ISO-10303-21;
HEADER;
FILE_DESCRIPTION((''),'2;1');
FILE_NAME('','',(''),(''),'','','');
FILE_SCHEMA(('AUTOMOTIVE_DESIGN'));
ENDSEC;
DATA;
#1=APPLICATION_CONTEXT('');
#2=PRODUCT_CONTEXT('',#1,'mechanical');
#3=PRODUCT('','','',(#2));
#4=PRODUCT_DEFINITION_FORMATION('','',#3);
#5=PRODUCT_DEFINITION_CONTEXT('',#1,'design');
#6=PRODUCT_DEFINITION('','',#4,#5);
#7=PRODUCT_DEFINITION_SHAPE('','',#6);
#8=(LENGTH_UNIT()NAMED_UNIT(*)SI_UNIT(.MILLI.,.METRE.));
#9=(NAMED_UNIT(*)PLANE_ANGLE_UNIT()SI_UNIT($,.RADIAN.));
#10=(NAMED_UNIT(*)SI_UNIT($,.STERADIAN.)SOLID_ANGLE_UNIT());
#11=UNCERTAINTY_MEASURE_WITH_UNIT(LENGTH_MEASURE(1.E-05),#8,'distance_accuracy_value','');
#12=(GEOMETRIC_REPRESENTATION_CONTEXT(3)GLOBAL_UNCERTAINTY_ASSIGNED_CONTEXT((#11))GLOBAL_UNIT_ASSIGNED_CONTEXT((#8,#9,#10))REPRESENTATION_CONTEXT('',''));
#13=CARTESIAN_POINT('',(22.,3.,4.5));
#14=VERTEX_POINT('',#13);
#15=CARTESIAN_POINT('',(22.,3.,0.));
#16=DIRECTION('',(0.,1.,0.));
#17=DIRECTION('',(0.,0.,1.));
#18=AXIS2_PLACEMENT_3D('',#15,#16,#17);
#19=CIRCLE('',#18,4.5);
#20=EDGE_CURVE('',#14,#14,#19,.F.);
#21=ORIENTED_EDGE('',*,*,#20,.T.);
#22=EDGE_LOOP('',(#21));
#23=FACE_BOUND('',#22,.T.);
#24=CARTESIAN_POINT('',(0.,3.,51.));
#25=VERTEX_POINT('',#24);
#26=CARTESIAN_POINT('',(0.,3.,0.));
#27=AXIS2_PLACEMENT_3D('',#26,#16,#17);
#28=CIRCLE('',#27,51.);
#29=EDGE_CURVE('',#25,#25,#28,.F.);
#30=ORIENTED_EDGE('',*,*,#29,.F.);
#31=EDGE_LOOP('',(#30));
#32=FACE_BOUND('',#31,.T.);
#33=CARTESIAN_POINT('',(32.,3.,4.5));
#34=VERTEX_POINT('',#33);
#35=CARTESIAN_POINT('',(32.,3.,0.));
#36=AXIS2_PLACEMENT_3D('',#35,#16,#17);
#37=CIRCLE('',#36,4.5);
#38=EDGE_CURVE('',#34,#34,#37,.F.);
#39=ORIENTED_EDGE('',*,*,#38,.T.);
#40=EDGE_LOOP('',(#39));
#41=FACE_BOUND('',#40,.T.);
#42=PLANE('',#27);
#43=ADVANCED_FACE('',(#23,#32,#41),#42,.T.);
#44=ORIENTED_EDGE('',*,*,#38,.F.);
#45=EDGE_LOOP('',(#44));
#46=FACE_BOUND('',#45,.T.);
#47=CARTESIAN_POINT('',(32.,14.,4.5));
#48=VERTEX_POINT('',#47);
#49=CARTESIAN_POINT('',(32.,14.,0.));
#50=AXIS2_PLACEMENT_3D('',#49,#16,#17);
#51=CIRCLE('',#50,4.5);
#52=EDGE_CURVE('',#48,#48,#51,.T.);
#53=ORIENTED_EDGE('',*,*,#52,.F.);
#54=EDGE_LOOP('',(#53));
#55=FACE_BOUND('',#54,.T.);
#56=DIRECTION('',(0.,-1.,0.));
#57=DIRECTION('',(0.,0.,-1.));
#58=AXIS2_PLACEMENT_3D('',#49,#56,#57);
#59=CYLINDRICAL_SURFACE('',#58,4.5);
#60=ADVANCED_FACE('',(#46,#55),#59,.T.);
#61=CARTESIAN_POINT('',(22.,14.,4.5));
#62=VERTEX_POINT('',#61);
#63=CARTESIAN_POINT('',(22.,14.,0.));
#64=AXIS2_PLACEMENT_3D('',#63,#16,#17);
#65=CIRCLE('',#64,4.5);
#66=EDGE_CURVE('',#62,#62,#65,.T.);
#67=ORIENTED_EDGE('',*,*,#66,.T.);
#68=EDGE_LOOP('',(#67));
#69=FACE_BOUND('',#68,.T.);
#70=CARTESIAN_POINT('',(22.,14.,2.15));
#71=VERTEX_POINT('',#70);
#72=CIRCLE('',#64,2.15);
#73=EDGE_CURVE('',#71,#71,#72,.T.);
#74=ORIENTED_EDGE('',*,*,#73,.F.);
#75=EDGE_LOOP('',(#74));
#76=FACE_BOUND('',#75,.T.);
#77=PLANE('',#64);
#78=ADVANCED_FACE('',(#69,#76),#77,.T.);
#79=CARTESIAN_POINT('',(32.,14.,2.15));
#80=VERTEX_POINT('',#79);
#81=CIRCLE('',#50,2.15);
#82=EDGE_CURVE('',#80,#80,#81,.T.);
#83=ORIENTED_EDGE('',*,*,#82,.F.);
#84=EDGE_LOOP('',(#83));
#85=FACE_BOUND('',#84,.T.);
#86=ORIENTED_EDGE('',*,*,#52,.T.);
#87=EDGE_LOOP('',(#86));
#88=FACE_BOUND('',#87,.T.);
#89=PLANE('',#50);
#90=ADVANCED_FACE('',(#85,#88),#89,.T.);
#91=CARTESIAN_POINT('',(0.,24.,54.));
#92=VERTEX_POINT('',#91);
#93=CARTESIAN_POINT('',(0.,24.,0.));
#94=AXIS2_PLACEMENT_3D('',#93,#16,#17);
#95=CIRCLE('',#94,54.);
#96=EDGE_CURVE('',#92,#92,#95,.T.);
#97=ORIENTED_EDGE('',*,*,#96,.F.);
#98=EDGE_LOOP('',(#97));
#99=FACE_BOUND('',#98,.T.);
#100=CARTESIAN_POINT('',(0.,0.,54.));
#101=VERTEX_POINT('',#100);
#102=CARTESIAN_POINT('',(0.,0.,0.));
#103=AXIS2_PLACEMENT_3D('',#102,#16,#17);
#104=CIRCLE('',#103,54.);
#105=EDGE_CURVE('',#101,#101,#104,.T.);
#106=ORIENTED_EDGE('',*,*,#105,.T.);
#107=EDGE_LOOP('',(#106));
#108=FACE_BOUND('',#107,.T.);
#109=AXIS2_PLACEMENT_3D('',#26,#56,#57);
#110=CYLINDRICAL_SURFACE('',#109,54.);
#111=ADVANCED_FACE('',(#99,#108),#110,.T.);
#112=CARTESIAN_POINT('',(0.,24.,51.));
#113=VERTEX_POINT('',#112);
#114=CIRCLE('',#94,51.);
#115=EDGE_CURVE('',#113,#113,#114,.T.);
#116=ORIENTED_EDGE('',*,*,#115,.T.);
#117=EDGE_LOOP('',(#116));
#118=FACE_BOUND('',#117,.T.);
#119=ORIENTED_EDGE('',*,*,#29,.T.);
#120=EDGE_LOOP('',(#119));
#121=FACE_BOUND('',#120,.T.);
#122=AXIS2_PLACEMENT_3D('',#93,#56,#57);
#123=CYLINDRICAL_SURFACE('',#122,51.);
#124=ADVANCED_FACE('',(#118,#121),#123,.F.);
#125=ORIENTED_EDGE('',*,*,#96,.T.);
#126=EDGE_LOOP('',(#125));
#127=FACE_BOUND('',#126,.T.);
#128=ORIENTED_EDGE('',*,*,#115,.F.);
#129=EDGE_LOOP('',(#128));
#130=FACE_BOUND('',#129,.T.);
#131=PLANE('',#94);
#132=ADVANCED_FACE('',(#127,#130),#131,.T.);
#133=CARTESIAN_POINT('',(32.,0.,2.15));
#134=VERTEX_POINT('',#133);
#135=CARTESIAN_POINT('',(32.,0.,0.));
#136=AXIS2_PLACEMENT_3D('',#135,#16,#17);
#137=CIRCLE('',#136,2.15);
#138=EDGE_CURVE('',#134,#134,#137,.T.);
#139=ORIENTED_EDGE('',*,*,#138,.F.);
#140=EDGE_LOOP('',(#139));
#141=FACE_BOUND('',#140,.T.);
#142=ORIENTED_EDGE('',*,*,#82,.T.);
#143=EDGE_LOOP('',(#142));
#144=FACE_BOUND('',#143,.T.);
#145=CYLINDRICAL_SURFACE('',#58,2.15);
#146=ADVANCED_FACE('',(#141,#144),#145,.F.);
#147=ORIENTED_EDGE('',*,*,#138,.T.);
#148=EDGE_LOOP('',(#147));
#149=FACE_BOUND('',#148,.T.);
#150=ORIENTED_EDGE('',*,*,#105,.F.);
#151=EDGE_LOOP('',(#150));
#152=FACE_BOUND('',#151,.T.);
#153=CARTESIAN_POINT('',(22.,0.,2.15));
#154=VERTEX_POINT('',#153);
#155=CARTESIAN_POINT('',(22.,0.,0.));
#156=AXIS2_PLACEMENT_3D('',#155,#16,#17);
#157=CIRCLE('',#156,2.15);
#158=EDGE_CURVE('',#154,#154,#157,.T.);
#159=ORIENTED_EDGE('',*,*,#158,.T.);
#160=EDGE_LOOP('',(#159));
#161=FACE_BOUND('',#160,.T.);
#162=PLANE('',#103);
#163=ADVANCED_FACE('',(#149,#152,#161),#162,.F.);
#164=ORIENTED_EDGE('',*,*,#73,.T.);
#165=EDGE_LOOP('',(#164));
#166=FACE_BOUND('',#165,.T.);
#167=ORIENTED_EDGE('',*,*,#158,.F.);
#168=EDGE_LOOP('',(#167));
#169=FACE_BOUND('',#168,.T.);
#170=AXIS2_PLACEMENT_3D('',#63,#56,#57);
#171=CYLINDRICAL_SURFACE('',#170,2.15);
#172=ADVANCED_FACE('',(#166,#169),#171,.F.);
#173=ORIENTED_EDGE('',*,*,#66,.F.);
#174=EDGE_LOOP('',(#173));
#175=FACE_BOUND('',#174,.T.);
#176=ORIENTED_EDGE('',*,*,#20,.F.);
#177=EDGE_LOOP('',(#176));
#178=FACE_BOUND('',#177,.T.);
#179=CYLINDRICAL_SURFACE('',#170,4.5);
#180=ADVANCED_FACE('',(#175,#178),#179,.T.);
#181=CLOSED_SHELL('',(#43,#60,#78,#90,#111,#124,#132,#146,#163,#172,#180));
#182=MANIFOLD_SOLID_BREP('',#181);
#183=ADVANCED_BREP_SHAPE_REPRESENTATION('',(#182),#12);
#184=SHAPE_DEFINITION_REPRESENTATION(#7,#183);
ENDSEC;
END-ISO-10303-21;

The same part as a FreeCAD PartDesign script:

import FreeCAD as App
import Part
import Sketcher

doc = App.newDocument("Part")
body = doc.addObject("PartDesign::Body", "Body")

# Sketch on XZ plane
sketch1 = body.newObject("Sketcher::SketchObject", "Sketch")
sketch1.AttachmentSupport = (doc.getObject("XZ_Plane"), [""])
sketch1.MapMode = "FlatFace"
sketch1.addGeometry(Part.Circle(App.Vector(0, 0, 0), App.Vector(0, 0, 1), 54), False)
sketch1.addConstraint(Sketcher.Constraint("Coincident", 0, 3, -1, 1))
sketch1.addConstraint(Sketcher.Constraint("Diameter", 0, 108.0))
pad1 = body.newObject("PartDesign::Pad", "Pad")
pad1.Profile = sketch1
pad1.Length = 3
pad1.Reversed = True

# Sketch on XZ plane
sketch2 = body.newObject("Sketcher::SketchObject", "Sketch001")
sketch2.AttachmentSupport = (doc.getObject("XZ_Plane"), [""])
sketch2.MapMode = "FlatFace"
sketch2.addGeometry(Part.Circle(App.Vector(0, 0, 0), App.Vector(0, 0, 1), 54), False)
sketch2.addGeometry(Part.Circle(App.Vector(0, 0, 0), App.Vector(0, 0, 1), 51), False)
sketch2.addConstraint(Sketcher.Constraint("Coincident", 0, 3, -1, 1))
sketch2.addConstraint(Sketcher.Constraint("Coincident", 1, 3, -1, 1))
sketch2.addConstraint(Sketcher.Constraint("Diameter", 0, 108.0))
sketch2.addConstraint(Sketcher.Constraint("Diameter", 1, 102.0))
pad2 = body.newObject("PartDesign::Pad", "Pad001")
pad2.Profile = sketch2
pad2.Length = 24
pad2.Reversed = True

# Sketch on XZ plane
sketch3 = body.newObject("Sketcher::SketchObject", "Sketch002")
sketch3.AttachmentSupport = (doc.getObject("XZ_Plane"), [""])
sketch3.MapMode = "FlatFace"
sketch3.addGeometry(Part.Circle(App.Vector(22, 0, 0), App.Vector(0, 0, 1), 4.5), False)
sketch3.addGeometry(Part.Circle(App.Vector(32, 0, 0), App.Vector(0, 0, 1), 4.5), False)
sketch3.addConstraint(Sketcher.Constraint("Equal", 0, 1))
sketch3.addConstraint(Sketcher.Constraint("PointOnObject", 0, 3, -1))
sketch3.addConstraint(Sketcher.Constraint("PointOnObject", 1, 3, -1))
sketch3.addConstraint(Sketcher.Constraint("Diameter", 0, 9.0))
sketch3.addConstraint(Sketcher.Constraint("DistanceX", -1, 1, 0, 3, 22.0))
sketch3.addConstraint(Sketcher.Constraint("DistanceX", -1, 1, 1, 3, 32.0))
pad3 = body.newObject("PartDesign::Pad", "Pad002")
pad3.Profile = sketch3
pad3.Length = 14
pad3.Reversed = True

# Sketch on XZ plane
sketch4 = body.newObject("Sketcher::SketchObject", "Sketch003")
sketch4.AttachmentSupport = (doc.getObject("XZ_Plane"), [""])
sketch4.MapMode = "FlatFace"
sketch4.addGeometry(Part.Circle(App.Vector(22, 0, 0), App.Vector(0, 0, 1), 2.1), False)
sketch4.addGeometry(Part.Circle(App.Vector(32, 0, 0), App.Vector(0, 0, 1), 2.1), False)
sketch4.addConstraint(Sketcher.Constraint("Equal", 0, 1))
sketch4.addConstraint(Sketcher.Constraint("PointOnObject", 0, 3, -1))
sketch4.addConstraint(Sketcher.Constraint("PointOnObject", 1, 3, -1))
sketch4.addConstraint(Sketcher.Constraint("Diameter", 0, 4.3))
sketch4.addConstraint(Sketcher.Constraint("DistanceX", -1, 1, 0, 3, 22.0))
sketch4.addConstraint(Sketcher.Constraint("DistanceX", -1, 1, 1, 3, 32.0))
pocket1 = body.newObject("PartDesign::Pocket", "Pocket")
pocket1.Profile = sketch4
pocket1.Length = 14

doc.recompute()
